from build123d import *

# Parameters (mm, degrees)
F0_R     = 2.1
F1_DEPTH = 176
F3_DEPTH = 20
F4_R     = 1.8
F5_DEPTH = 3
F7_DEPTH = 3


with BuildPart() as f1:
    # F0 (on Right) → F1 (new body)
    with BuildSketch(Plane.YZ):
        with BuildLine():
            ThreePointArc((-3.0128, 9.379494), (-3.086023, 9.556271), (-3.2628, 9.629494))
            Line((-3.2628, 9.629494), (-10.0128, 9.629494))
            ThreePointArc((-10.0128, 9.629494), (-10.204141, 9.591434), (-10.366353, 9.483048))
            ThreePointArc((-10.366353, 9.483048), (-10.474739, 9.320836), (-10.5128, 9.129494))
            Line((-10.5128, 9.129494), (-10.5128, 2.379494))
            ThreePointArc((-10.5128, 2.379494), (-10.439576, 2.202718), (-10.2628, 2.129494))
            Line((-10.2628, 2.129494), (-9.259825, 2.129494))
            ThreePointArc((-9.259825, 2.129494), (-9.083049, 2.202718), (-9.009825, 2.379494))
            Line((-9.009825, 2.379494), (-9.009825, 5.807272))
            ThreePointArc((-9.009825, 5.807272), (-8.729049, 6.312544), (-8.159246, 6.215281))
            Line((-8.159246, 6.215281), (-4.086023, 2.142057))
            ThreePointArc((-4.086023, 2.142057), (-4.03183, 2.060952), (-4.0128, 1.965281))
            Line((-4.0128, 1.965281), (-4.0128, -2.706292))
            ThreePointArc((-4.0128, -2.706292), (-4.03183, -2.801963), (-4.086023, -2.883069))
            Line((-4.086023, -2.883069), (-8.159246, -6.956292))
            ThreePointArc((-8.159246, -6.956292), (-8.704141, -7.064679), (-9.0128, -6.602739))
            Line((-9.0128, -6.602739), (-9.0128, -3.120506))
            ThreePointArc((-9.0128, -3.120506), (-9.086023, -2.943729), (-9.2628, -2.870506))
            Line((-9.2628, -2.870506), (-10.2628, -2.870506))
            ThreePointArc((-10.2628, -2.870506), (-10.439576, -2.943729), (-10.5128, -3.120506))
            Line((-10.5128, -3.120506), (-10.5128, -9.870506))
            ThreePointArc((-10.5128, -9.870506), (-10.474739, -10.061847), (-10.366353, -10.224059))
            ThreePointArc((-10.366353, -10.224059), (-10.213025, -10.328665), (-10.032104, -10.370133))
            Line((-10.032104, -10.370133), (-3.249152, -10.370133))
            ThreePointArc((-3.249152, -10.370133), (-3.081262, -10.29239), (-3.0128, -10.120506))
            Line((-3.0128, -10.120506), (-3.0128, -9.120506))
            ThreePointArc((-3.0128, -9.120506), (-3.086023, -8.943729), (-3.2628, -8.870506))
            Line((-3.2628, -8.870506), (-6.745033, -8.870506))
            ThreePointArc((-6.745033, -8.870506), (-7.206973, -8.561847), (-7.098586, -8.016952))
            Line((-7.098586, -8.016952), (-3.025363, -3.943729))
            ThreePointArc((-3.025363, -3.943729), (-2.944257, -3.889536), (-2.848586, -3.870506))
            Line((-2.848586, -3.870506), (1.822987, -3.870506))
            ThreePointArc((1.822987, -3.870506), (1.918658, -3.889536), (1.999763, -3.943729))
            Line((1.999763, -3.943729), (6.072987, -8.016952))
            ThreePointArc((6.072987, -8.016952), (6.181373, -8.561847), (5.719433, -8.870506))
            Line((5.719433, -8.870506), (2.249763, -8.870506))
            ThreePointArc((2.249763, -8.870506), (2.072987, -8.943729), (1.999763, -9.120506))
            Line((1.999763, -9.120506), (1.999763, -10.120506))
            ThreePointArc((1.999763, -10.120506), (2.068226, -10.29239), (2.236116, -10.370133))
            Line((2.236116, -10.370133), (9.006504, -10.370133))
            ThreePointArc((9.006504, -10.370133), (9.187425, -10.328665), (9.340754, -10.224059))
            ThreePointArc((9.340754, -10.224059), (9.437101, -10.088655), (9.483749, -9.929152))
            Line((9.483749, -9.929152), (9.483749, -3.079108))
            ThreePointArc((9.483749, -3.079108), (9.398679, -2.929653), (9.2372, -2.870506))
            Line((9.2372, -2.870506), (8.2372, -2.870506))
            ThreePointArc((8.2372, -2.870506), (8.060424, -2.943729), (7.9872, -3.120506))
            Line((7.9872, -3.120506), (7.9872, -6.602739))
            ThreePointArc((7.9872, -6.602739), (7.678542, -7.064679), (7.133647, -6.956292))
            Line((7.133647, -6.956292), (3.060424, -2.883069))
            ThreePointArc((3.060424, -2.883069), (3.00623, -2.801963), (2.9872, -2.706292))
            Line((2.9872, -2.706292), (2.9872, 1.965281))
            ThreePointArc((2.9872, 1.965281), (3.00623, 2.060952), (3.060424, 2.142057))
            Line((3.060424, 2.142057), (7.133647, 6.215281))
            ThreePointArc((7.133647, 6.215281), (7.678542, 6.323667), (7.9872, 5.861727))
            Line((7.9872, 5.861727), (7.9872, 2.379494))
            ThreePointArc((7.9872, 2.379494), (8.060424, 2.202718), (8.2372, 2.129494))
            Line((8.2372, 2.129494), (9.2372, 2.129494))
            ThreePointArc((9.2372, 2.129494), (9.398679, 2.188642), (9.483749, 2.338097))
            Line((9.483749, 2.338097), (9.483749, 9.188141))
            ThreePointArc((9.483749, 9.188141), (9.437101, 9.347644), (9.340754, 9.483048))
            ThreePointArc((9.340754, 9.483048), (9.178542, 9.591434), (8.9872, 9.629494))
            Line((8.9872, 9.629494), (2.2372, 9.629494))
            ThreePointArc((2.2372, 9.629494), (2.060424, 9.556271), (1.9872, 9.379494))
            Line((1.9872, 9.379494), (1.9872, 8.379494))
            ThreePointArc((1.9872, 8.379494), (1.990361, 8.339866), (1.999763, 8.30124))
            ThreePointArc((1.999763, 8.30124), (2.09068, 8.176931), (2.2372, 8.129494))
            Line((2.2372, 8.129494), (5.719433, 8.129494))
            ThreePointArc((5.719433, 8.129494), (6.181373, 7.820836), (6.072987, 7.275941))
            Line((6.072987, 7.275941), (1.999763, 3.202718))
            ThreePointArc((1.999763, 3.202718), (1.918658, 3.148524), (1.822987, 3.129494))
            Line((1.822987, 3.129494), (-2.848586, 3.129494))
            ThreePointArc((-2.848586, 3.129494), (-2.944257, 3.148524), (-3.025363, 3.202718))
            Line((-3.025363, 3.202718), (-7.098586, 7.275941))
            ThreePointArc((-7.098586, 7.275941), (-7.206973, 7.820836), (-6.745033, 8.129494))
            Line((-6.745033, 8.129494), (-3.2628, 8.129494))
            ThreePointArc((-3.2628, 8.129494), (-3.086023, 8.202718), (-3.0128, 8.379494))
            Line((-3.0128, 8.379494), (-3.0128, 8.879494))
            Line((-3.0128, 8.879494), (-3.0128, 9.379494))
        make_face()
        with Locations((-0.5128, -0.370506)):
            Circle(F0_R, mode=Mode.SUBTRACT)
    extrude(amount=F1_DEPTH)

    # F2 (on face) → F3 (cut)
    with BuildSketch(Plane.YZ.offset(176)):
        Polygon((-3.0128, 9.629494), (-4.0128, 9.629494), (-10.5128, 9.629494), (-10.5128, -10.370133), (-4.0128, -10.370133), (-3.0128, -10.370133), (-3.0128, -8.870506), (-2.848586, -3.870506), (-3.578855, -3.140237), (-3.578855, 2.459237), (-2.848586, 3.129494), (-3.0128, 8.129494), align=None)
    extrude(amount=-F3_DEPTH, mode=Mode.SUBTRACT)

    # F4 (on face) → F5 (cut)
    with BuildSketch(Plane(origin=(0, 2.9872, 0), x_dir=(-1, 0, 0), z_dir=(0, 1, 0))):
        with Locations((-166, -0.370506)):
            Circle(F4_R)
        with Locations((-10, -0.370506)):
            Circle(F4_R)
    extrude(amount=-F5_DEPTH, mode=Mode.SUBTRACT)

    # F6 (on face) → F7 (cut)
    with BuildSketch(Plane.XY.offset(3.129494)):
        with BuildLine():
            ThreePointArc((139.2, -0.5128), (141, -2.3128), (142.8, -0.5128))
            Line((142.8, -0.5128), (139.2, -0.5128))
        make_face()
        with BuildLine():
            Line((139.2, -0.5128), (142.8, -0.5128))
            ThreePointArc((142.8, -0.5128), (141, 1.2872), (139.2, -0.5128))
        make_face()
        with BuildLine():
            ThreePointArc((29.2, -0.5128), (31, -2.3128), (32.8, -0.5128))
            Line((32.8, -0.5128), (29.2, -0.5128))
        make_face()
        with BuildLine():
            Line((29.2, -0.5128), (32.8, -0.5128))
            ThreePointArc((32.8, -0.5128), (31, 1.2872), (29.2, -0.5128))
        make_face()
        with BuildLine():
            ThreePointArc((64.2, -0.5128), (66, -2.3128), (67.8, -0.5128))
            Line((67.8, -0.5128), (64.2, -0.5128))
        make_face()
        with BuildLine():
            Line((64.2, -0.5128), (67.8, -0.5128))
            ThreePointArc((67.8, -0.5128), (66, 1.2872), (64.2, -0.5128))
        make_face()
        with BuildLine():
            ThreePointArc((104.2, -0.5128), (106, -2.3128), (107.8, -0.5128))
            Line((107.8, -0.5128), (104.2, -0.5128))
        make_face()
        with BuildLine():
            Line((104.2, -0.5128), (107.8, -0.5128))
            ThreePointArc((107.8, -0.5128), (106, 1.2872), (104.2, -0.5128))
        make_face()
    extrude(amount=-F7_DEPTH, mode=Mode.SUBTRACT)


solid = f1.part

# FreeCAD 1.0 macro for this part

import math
import FreeCAD as App
import Part
import Sketcher
Q = App.Units.Quantity


def add_polygon(sketch, points):
    """Adds a closed chain of lines whose ends are joined by coincident constraints."""
    first, n = sketch.GeometryCount, len(points)
    for a, b in zip(points, points[1:] + points[:1]):
        sketch.addGeometry(Part.LineSegment(App.Vector(*a, 0), App.Vector(*b, 0)), False)
    for i in range(n):
        sketch.addConstraint(Sketcher.Constraint("Coincident", first + i, 2, first + (i + 1) % n, 1))

doc = App.newDocument("Part")
body = doc.addObject("PartDesign::Body", "Body")

# Sketch on YZ plane
sketch1 = doc.addObject("Sketcher::SketchObject", "Sketch")
body.addObject(sketch1)
sketch1.AttachmentSupport = (doc.YZ_Plane, [""])
sketch1.MapMode = "FlatFace"
sketch1.addGeometry([
    Part.ArcOfCircle(Part.Circle(App.Vector(-3.26, 9.38, 0), App.Vector(0, 0, 1), 0.25), math.radians(0), math.radians(90)),  # 0
    Part.LineSegment(App.Vector(-3.26, 9.63, 0), App.Vector(-10.01, 9.63, 0)),  # 1
    Part.ArcOfCircle(Part.Circle(App.Vector(-10.01, 9.13, 0), App.Vector(0, 0, 1), 0.5), math.radians(90), math.radians(135)),  # 2
    Part.ArcOfCircle(Part.Circle(App.Vector(-10.01, 9.13, 0), App.Vector(0, 0, 1), 0.5), math.radians(135), math.radians(180)),  # 3
    Part.LineSegment(App.Vector(-10.51, 9.13, 0), App.Vector(-10.51, 2.38, 0)),  # 4
    Part.ArcOfCircle(Part.Circle(App.Vector(-10.26, 2.38, 0), App.Vector(0, 0, 1), 0.25), math.radians(-180), math.radians(-90)),  # 5
    Part.LineSegment(App.Vector(-10.26, 2.13, 0), App.Vector(-9.26, 2.13, 0)),  # 6
    Part.ArcOfCircle(Part.Circle(App.Vector(-9.26, 2.38, 0), App.Vector(0, 0, 1), 0.25), math.radians(-90), math.radians(0)),  # 7
    Part.LineSegment(App.Vector(-9.01, 2.38, 0), App.Vector(-9.01, 5.81, 0)),  # 8
    Part.ArcOfCircle(Part.Circle(App.Vector(-8.51, 5.86, 0), App.Vector(0, 0, 1), 0.5), math.radians(45), math.radians(186)),  # 9
    Part.LineSegment(App.Vector(-8.16, 6.22, 0), App.Vector(-4.09, 2.14, 0)),  # 10
    Part.ArcOfCircle(Part.Circle(App.Vector(-4.26, 1.97, 0), App.Vector(0, 0, 1), 0.25), math.radians(0), math.radians(45)),  # 11
    Part.LineSegment(App.Vector(-4.01, 1.97, 0), App.Vector(-4.01, -2.71, 0)),  # 12
    Part.ArcOfCircle(Part.Circle(App.Vector(-4.26, -2.71, 0), App.Vector(0, 0, 1), 0.25), math.radians(-45), math.radians(0)),  # 13
    Part.LineSegment(App.Vector(-4.09, -2.88, 0), App.Vector(-8.16, -6.96, 0)),  # 14
    Part.ArcOfCircle(Part.Circle(App.Vector(-8.51, -6.6, 0), App.Vector(0, 0, 1), 0.5), math.radians(-180), math.radians(-45)),  # 15
    Part.LineSegment(App.Vector(-9.01, -6.6, 0), App.Vector(-9.01, -3.12, 0)),  # 16
    Part.ArcOfCircle(Part.Circle(App.Vector(-9.26, -3.12, 0), App.Vector(0, 0, 1), 0.25), math.radians(0), math.radians(90)),  # 17
    Part.LineSegment(App.Vector(-9.26, -2.87, 0), App.Vector(-10.26, -2.87, 0)),  # 18
    Part.ArcOfCircle(Part.Circle(App.Vector(-10.26, -3.12, 0), App.Vector(0, 0, 1), 0.25), math.radians(90), math.radians(180)),  # 19
    Part.LineSegment(App.Vector(-10.51, -3.12, 0), App.Vector(-10.51, -9.87, 0)),  # 20
    Part.ArcOfCircle(Part.Circle(App.Vector(-10.01, -9.87, 0), App.Vector(0, 0, 1), 0.5), math.radians(-180), math.radians(-135)),  # 21
    Part.ArcOfCircle(Part.Circle(App.Vector(-10.01, -9.87, 0), App.Vector(0, 0, 1), 0.5), math.radians(-135), math.radians(-92)),  # 22
    Part.LineSegment(App.Vector(-10.03, -10.37, 0), App.Vector(-3.25, -10.37, 0)),  # 23
    Part.ArcOfCircle(Part.Circle(App.Vector(-3.26, -10.12, 0), App.Vector(0, 0, 1), 0.25), math.radians(-87), math.radians(0)),  # 24
    Part.LineSegment(App.Vector(-3.01, -10.12, 0), App.Vector(-3.01, -9.12, 0)),  # 25
    Part.ArcOfCircle(Part.Circle(App.Vector(-3.26, -9.12, 0), App.Vector(0, 0, 1), 0.25), math.radians(0), math.radians(90)),  # 26
    Part.LineSegment(App.Vector(-3.26, -8.87, 0), App.Vector(-6.75, -8.87, 0)),  # 27
    Part.ArcOfCircle(Part.Circle(App.Vector(-6.75, -8.37, 0), App.Vector(0, 0, 1), 0.5), math.radians(135), math.radians(270)),  # 28
    Part.LineSegment(App.Vector(-7.1, -8.02, 0), App.Vector(-3.03, -3.94, 0)),  # 29
    Part.ArcOfCircle(Part.Circle(App.Vector(-2.85, -4.12, 0), App.Vector(0, 0, 1), 0.25), math.radians(90), math.radians(135)),  # 30
    Part.LineSegment(App.Vector(-2.85, -3.87, 0), App.Vector(1.82, -3.87, 0)),  # 31
    Part.ArcOfCircle(Part.Circle(App.Vector(1.82, -4.12, 0), App.Vector(0, 0, 1), 0.25), math.radians(45), math.radians(90)),  # 32
    Part.LineSegment(App.Vector(2, -3.94, 0), App.Vector(6.07, -8.02, 0)),  # 33
    Part.ArcOfCircle(Part.Circle(App.Vector(5.72, -8.37, 0), App.Vector(0, 0, 1), 0.5), math.radians(-90), math.radians(45)),  # 34
    Part.LineSegment(App.Vector(5.72, -8.87, 0), App.Vector(2.25, -8.87, 0)),  # 35
    Part.ArcOfCircle(Part.Circle(App.Vector(2.25, -9.12, 0), App.Vector(0, 0, 1), 0.25), math.radians(90), math.radians(180)),  # 36
    Part.LineSegment(App.Vector(2, -9.12, 0), App.Vector(2, -10.12, 0)),  # 37
    Part.ArcOfCircle(Part.Circle(App.Vector(2.25, -10.12, 0), App.Vector(0, 0, 1), 0.25), math.radians(-180), math.radians(-93)),  # 38
    Part.LineSegment(App.Vector(2.24, -10.37, 0), App.Vector(9.01, -10.37, 0)),  # 39
    Part.ArcOfCircle(Part.Circle(App.Vector(8.99, -9.87, 0), App.Vector(0, 0, 1), 0.5), math.radians(-88), math.radians(-45)),  # 40
    Part.ArcOfCircle(Part.Circle(App.Vector(8.99, -9.87, 0), App.Vector(0, 0, 1), 0.5), math.radians(-45), math.radians(-7)),  # 41
    Part.LineSegment(App.Vector(9.48, -9.93, 0), App.Vector(9.48, -3.08, 0)),  # 42
    Part.ArcOfCircle(Part.Circle(App.Vector(9.24, -3.12, 0), App.Vector(0, 0, 1), 0.25), math.radians(10), math.radians(90)),  # 43
    Part.LineSegment(App.Vector(9.24, -2.87, 0), App.Vector(8.24, -2.87, 0)),  # 44
    Part.ArcOfCircle(Part.Circle(App.Vector(8.24, -3.12, 0), App.Vector(0, 0, 1), 0.25), math.radians(90), math.radians(180)),  # 45
    Part.LineSegment(App.Vector(7.99, -3.12, 0), App.Vector(7.99, -6.6, 0)),  # 46
    Part.ArcOfCircle(Part.Circle(App.Vector(7.49, -6.6, 0), App.Vector(0, 0, 1), 0.5), math.radians(-135), math.radians(0)),  # 47
    Part.LineSegment(App.Vector(7.13, -6.96, 0), App.Vector(3.06, -2.88, 0)),  # 48
    Part.ArcOfCircle(Part.Circle(App.Vector(3.24, -2.71, 0), App.Vector(0, 0, 1), 0.25), math.radians(180), math.radians(225)),  # 49
    Part.LineSegment(App.Vector(2.99, -2.71, 0), App.Vector(2.99, 1.97, 0)),  # 50
    Part.ArcOfCircle(Part.Circle(App.Vector(3.24, 1.97, 0), App.Vector(0, 0, 1), 0.25), math.radians(135), math.radians(180)),  # 51
    Part.LineSegment(App.Vector(3.06, 2.14, 0), App.Vector(7.13, 6.22, 0)),  # 52
    Part.ArcOfCircle(Part.Circle(App.Vector(7.49, 5.86, 0), App.Vector(0, 0, 1), 0.5), math.radians(0), math.radians(135)),  # 53
    Part.LineSegment(App.Vector(7.99, 5.86, 0), App.Vector(7.99, 2.38, 0)),  # 54
    Part.ArcOfCircle(Part.Circle(App.Vector(8.24, 2.38, 0), App.Vector(0, 0, 1), 0.25), math.radians(-180), math.radians(-90)),  # 55
    Part.LineSegment(App.Vector(8.24, 2.13, 0), App.Vector(9.24, 2.13, 0)),  # 56
    Part.ArcOfCircle(Part.Circle(App.Vector(9.24, 2.38, 0), App.Vector(0, 0, 1), 0.25), math.radians(-90), math.radians(-10)),  # 57
    Part.LineSegment(App.Vector(9.48, 2.34, 0), App.Vector(9.48, 9.19, 0)),  # 58
    Part.ArcOfCircle(Part.Circle(App.Vector(8.99, 9.13, 0), App.Vector(0, 0, 1), 0.5), math.radians(7), math.radians(45)),  # 59
    Part.ArcOfCircle(Part.Circle(App.Vector(8.99, 9.13, 0), App.Vector(0, 0, 1), 0.5), math.radians(45), math.radians(90)),  # 60
    Part.LineSegment(App.Vector(8.99, 9.63, 0), App.Vector(2.24, 9.63, 0)),  # 61
    Part.ArcOfCircle(Part.Circle(App.Vector(2.24, 9.38, 0), App.Vector(0, 0, 1), 0.25), math.radians(90), math.radians(180)),  # 62
    Part.LineSegment(App.Vector(1.99, 9.38, 0), App.Vector(1.99, 8.38, 0)),  # 63
    Part.ArcOfCircle(Part.Circle(App.Vector(2.24, 8.38, 0), App.Vector(0, 0, 1), 0.25), math.radians(-180), math.radians(-161.76)),  # 64
    Part.ArcOfCircle(Part.Circle(App.Vector(2.24, 8.38, 0), App.Vector(0, 0, 1), 0.25), math.radians(-162), math.radians(-90)),  # 65
    Part.LineSegment(App.Vector(2.24, 8.13, 0), App.Vector(5.72, 8.13, 0)),  # 66
    Part.ArcOfCircle(Part.Circle(App.Vector(5.72, 7.63, 0), App.Vector(0, 0, 1), 0.5), math.radians(-45), math.radians(90)),  # 67
    Part.LineSegment(App.Vector(6.07, 7.28, 0), App.Vector(2, 3.2, 0)),  # 68
    Part.ArcOfCircle(Part.Circle(App.Vector(1.82, 3.38, 0), App.Vector(0, 0, 1), 0.25), math.radians(-90), math.radians(-45)),  # 69
    Part.LineSegment(App.Vector(1.82, 3.13, 0), App.Vector(-2.85, 3.13, 0)),  # 70
    Part.ArcOfCircle(Part.Circle(App.Vector(-2.85, 3.38, 0), App.Vector(0, 0, 1), 0.25), math.radians(-135), math.radians(-90)),  # 71
    Part.LineSegment(App.Vector(-3.03, 3.2, 0), App.Vector(-7.1, 7.28, 0)),  # 72
    Part.ArcOfCircle(Part.Circle(App.Vector(-6.75, 7.63, 0), App.Vector(0, 0, 1), 0.5), math.radians(90), math.radians(225)),  # 73
    Part.LineSegment(App.Vector(-6.75, 8.13, 0), App.Vector(-3.26, 8.13, 0)),  # 74
    Part.ArcOfCircle(Part.Circle(App.Vector(-3.26, 8.38, 0), App.Vector(0, 0, 1), 0.25), math.radians(-90), math.radians(0)),  # 75
    Part.LineSegment(App.Vector(-3.01, 8.38, 0), App.Vector(-3.01, 9.38, 0)),  # 76
    Part.Circle(App.Vector(-0.51, -0.37, 0), App.Vector(0, 0, 1), 2.1),  # 77
], False)
sketch1.addConstraint([
    Sketcher.Constraint("Coincident", 0, 2, 1, 1),
    Sketcher.Constraint("Tangent", 1, 2, 2, 1),
    Sketcher.Constraint("Coincident", 2, 2, 3, 1),
    Sketcher.Constraint("Coincident", 3, 2, 4, 1),
    Sketcher.Constraint("Coincident", 4, 2, 5, 1),
    Sketcher.Constraint("Coincident", 5, 2, 6, 1),
    Sketcher.Constraint("Coincident", 6, 2, 7, 1),
    Sketcher.Constraint("Coincident", 7, 2, 8, 1),
    Sketcher.Constraint("Coincident", 8, 2, 9, 2),
    Sketcher.Constraint("Tangent", 9, 1, 10, 1),
    Sketcher.Constraint("Coincident", 10, 2, 11, 2),
    Sketcher.Constraint("Coincident", 11, 1, 12, 1),
    Sketcher.Constraint("Tangent", 12, 2, 13, 2),
    Sketcher.Constraint("Coincident", 13, 1, 14, 1),
    Sketcher.Constraint("Tangent", 14, 2, 15, 2),
    Sketcher.Constraint("Tangent", 15, 1, 16, 1),
    Sketcher.Constraint("Coincident", 16, 2, 17, 1),
    Sketcher.Constraint("Coincident", 17, 2, 18, 1),
    Sketcher.Constraint("Coincident", 18, 2, 19, 1),
    Sketcher.Constraint("Coincident", 19, 2, 20, 1),
    Sketcher.Constraint("Coincident", 20, 2, 21, 1),
    Sketcher.Constraint("Coincident", 21, 2, 22, 1),
    Sketcher.Constraint("Coincident", 22, 2, 23, 1),
    Sketcher.Constraint("Coincident", 23, 2, 24, 1),
    Sketcher.Constraint("Coincident", 24, 2, 25, 1),
    Sketcher.Constraint("Coincident", 25, 2, 26, 1),
    Sketcher.Constraint("Coincident", 26, 2, 27, 1),
    Sketcher.Constraint("Tangent", 27, 2, 28, 2),
    Sketcher.Constraint("Tangent", 28, 1, 29, 1),
    Sketcher.Constraint("Coincident", 29, 2, 30, 2),
    Sketcher.Constraint("Tangent", 30, 1, 31, 1),
    Sketcher.Constraint("Coincident", 31, 2, 32, 2),
    Sketcher.Constraint("Coincident", 32, 1, 33, 1),
    Sketcher.Constraint("Tangent", 33, 2, 34, 2),
    Sketcher.Constraint("Tangent", 34, 1, 35, 1),
    Sketcher.Constraint("Coincident", 35, 2, 36, 1),
    Sketcher.Constraint("Coincident", 36, 2, 37, 1),
    Sketcher.Constraint("Coincident", 37, 2, 38, 1),
    Sketcher.Constraint("Coincident", 38, 2, 39, 1),
    Sketcher.Constraint("Coincident", 39, 2, 40, 1),
    Sketcher.Constraint("Coincident", 40, 2, 41, 1),
    Sketcher.Constraint("Coincident", 41, 2, 42, 1),
    Sketcher.Constraint("Coincident", 42, 2, 43, 1),
    Sketcher.Constraint("Coincident", 43, 2, 44, 1),
    Sketcher.Constraint("Coincident", 44, 2, 45, 1),
    Sketcher.Constraint("Coincident", 45, 2, 46, 1),
    Sketcher.Constraint("Tangent", 46, 2, 47, 2),
    Sketcher.Constraint("Coincident", 47, 1, 48, 1),
    Sketcher.Constraint("Coincident", 48, 2, 49, 2),
    Sketcher.Constraint("Coincident", 49, 1, 50, 1),
    Sketcher.Constraint("Coincident", 50, 2, 51, 2),
    Sketcher.Constraint("Coincident", 51, 1, 52, 1),
    Sketcher.Constraint("Tangent", 52, 2, 53, 2),
    Sketcher.Constraint("Tangent", 53, 1, 54, 1),
    Sketcher.Constraint("Coincident", 54, 2, 55, 1),
    Sketcher.Constraint("Coincident", 55, 2, 56, 1),
    Sketcher.Constraint("Tangent", 56, 2, 57, 1),
    Sketcher.Constraint("Coincident", 57, 2, 58, 1),
    Sketcher.Constraint("Coincident", 58, 2, 59, 1),
    Sketcher.Constraint("Coincident", 59, 2, 60, 1),
    Sketcher.Constraint("Tangent", 60, 2, 61, 1),
    Sketcher.Constraint("Coincident", 61, 2, 62, 1),
    Sketcher.Constraint("Coincident", 62, 2, 63, 1),
    Sketcher.Constraint("Coincident", 63, 2, 64, 1),
    Sketcher.Constraint("Coincident", 64, 2, 65, 1),
    Sketcher.Constraint("Coincident", 65, 2, 66, 1),
    Sketcher.Constraint("Tangent", 66, 2, 67, 2),
    Sketcher.Constraint("Tangent", 67, 1, 68, 1),
    Sketcher.Constraint("Coincident", 68, 2, 69, 2),
    Sketcher.Constraint("Coincident", 69, 1, 70, 1),
    Sketcher.Constraint("Coincident", 70, 2, 71, 2),
    Sketcher.Constraint("Coincident", 71, 1, 72, 1),
    Sketcher.Constraint("Coincident", 72, 2, 73, 2),
    Sketcher.Constraint("Tangent", 73, 1, 74, 1),
    Sketcher.Constraint("Coincident", 74, 2, 75, 1),
    Sketcher.Constraint("Coincident", 75, 2, 76, 1),
    Sketcher.Constraint("Coincident", 76, 2, 0, 1),
    Sketcher.Constraint("Horizontal", 1),
    Sketcher.Constraint("Vertical", 4),
    Sketcher.Constraint("Horizontal", 6),
    Sketcher.Constraint("Vertical", 8),
    Sketcher.Constraint("Vertical", 12),
    Sketcher.Constraint("Vertical", 16),
    Sketcher.Constraint("Horizontal", 18),
    Sketcher.Constraint("Vertical", 20),
    Sketcher.Constraint("Horizontal", 23),
    Sketcher.Constraint("Vertical", 25),
    Sketcher.Constraint("Horizontal", 27),
    Sketcher.Constraint("Horizontal", 31),
    Sketcher.Constraint("Horizontal", 35),
    Sketcher.Constraint("Vertical", 37),
    Sketcher.Constraint("Horizontal", 39),
    Sketcher.Constraint("Vertical", 42),
    Sketcher.Constraint("Horizontal", 44),
    Sketcher.Constraint("Vertical", 46),
    Sketcher.Constraint("Vertical", 50),
    Sketcher.Constraint("Vertical", 54),
    Sketcher.Constraint("Horizontal", 56),
    Sketcher.Constraint("Vertical", 58),
    Sketcher.Constraint("Horizontal", 61),
    Sketcher.Constraint("Vertical", 63),
    Sketcher.Constraint("Horizontal", 66),
    Sketcher.Constraint("Horizontal", 70),
    Sketcher.Constraint("Horizontal", 74),
    Sketcher.Constraint("Vertical", 76),
    Sketcher.Constraint("Coincident", 3, 3, 2, 3),
    Sketcher.Constraint("Coincident", 41, 3, 40, 3),
    Sketcher.Constraint("Coincident", 60, 3, 59, 3),
    Sketcher.Constraint("Equal", 5, 7),
    Sketcher.Constraint("Equal", 2, 9),
    Sketcher.Constraint("Equal", 7, 13),
    Sketcher.Constraint("Equal", 9, 15),
    Sketcher.Constraint("Equal", 13, 17),
    Sketcher.Constraint("Equal", 17, 19),
    Sketcher.Constraint("Equal", 3, 21),
    Sketcher.Constraint("Equal", 15, 22),
    Sketcher.Constraint("Equal", 19, 24),
    Sketcher.Constraint("Equal", 24, 26),
    Sketcher.Constraint("Equal", 22, 28),
    Sketcher.Constraint("Equal", 26, 30),
    Sketcher.Constraint("Equal", 11, 32),
    Sketcher.Constraint("Equal", 28, 34),
    Sketcher.Constraint("Equal", 30, 36),
    Sketcher.Constraint("Equal", 36, 38),
    Sketcher.Constraint("Equal", 2, 40),
    Sketcher.Constraint("Equal", 38, 43),
    Sketcher.Constraint("Equal", 43, 45),
    Sketcher.Constraint("Equal", 34, 47),
    Sketcher.Constraint("Equal", 32, 49),
    Sketcher.Constraint("Equal", 47, 53),
    Sketcher.Constraint("Equal", 45, 55),
    Sketcher.Constraint("Equal", 55, 57),
    Sketcher.Constraint("Equal", 41, 59),
    Sketcher.Constraint("Equal", 57, 62),
    Sketcher.Constraint("Equal", 62, 65),
    Sketcher.Constraint("Equal", 60, 67),
    Sketcher.Constraint("Equal", 51, 69),
    Sketcher.Constraint("Equal", 49, 71),
    Sketcher.Constraint("Equal", 67, 73),
    Sketcher.Constraint("Equal", 65, 75),
    Sketcher.Constraint("Perpendicular", 10, 14),
    Sketcher.Constraint("Parallel", 14, 29),
    Sketcher.Constraint("Perpendicular", 29, 33),
    Sketcher.Constraint("Parallel", 33, 48),
    Sketcher.Constraint("Perpendicular", 48, 52),
    Sketcher.Constraint("Parallel", 52, 68),
    Sketcher.Constraint("Perpendicular", 68, 72),
    Sketcher.Constraint("Horizontal", 28, 3, 34, 3),
    Sketcher.Constraint("Horizontal", 24, 3, 38, 3),
    Sketcher.Constraint("Horizontal", 21, 3, 40, 3),
    Sketcher.Constraint("Horizontal", 19, 3, 43, 3),
    Sketcher.Constraint("Horizontal", 15, 3, 47, 3),
    Sketcher.Constraint("Horizontal", 13, 3, 49, 3),
    Sketcher.Constraint("Horizontal", 11, 3, 51, 3),
    Sketcher.Constraint("Horizontal", 9, 3, 53, 3),
    Sketcher.Constraint("Horizontal", 7, 3, 55, 3),
    Sketcher.Constraint("Horizontal", 3, 3, 59, 3),
    Sketcher.Constraint("Horizontal", 0, 3, 62, 3),
    Sketcher.Constraint("Horizontal", 67, 3, 73, 3),
    Sketcher.Constraint("Horizontal", 60, 3, 3, 2),
    Sketcher.Constraint("Horizontal", 57, 3, 4, 2),
    Sketcher.Constraint("Horizontal", 4, 2, 7, 2),
    Sketcher.Constraint("Horizontal", 45, 3, 16, 2),
    Sketcher.Constraint("Horizontal", 16, 2, 19, 2),
    Sketcher.Constraint("Horizontal", 22, 3, 20, 2),
    Sketcher.Constraint("Horizontal", 38, 3, 24, 2),
    Sketcher.Constraint("Horizontal", 36, 3, 25, 2),
    Sketcher.Constraint("Horizontal", 29, 2, 32, 1),
    Sketcher.Constraint("Horizontal", 28, 1, 33, 2),
    Sketcher.Constraint("Horizontal", 25, 2, 36, 2),
    Sketcher.Constraint("Horizontal", 24, 2, 37, 2),
    Sketcher.Constraint("Horizontal", 23, 2, 38, 2),
    Sketcher.Constraint("Horizontal", 21, 2, 40, 2),
    Sketcher.Constraint("Horizontal", 19, 2, 45, 2),
    Sketcher.Constraint("Horizontal", 14, 2, 47, 1),
    Sketcher.Constraint("Horizontal", 13, 1, 48, 2),
    Sketcher.Constraint("Horizontal", 12, 2, 49, 1),
    Sketcher.Constraint("Horizontal", 11, 1, 50, 2),
    Sketcher.Constraint("Horizontal", 10, 2, 51, 1),
    Sketcher.Constraint("Horizontal", 7, 2, 54, 2),
    Sketcher.Constraint("Horizontal", 2, 2, 59, 2),
    Sketcher.Constraint("Horizontal", 0, 3, 62, 2),
    Sketcher.Constraint("Horizontal", 75, 3, 63, 2),
    Sketcher.Constraint("Horizontal", 68, 2, 71, 1),
    Sketcher.Constraint("Horizontal", 67, 1, 72, 2),
    Sketcher.Constraint("Horizontal", 63, 2, 75, 2),
    Sketcher.Constraint("Horizontal", 62, 2, 76, 2),
    Sketcher.Constraint("Vertical", 9, 3, 15, 3),
    Sketcher.Constraint("Vertical", 5, 3, 19, 3),
    Sketcher.Constraint("Vertical", 2, 3, 22, 3),
    Sketcher.Constraint("Vertical", 0, 3, 24, 3),
    Sketcher.Constraint("Vertical", 47, 3, 53, 3),
    Sketcher.Constraint("Vertical", 43, 3, 57, 3),
    Sketcher.Constraint("Vertical", 41, 3, 59, 3),
    Sketcher.Constraint("Vertical", 62, 3, 65, 3),
    Sketcher.Constraint("Vertical", 34, 3, 67, 3),
    Sketcher.Constraint("Vertical", 32, 3, 69, 3),
    Sketcher.Constraint("Vertical", 30, 3, 71, 3),
    Sketcher.Constraint("Vertical", 75, 3, 0, 2),
    Sketcher.Constraint("Vertical", 19, 3, 5, 2),
    Sketcher.Constraint("Vertical", 10, 2, 13, 1),
    Sketcher.Constraint("Vertical", 5, 2, 18, 2),
    Sketcher.Constraint("Vertical", 2, 2, 21, 2),
    Sketcher.Constraint("Vertical", 0, 2, 26, 2),
    Sketcher.Constraint("Vertical", 32, 3, 31, 2),
    Sketcher.Constraint("Vertical", 38, 3, 35, 2),
    Sketcher.Constraint("Vertical", 32, 1, 36, 2),
    Sketcher.Constraint("Vertical", 57, 3, 43, 2),
    Sketcher.Constraint("Vertical", 45, 3, 44, 2),
    Sketcher.Constraint("Vertical", 44, 2, 55, 2),
    Sketcher.Constraint("Vertical", 42, 2, 57, 2),
    Sketcher.Constraint("Vertical", 65, 3, 61, 2),
    Sketcher.Constraint("Vertical", 37, 2, 64, 2),
    Sketcher.Constraint("Vertical", 61, 2, 65, 2),
    Sketcher.Constraint("Vertical", 64, 2, 68, 2),
    Sketcher.Constraint("Vertical", 31, 2, 69, 1),
    Sketcher.Constraint("Vertical", 30, 1, 70, 2),
    Sketcher.Constraint("Vertical", 26, 2, 74, 2),
    Sketcher.Constraint("Equal", 18, 44),
    Sketcher.Constraint("Equal", 1, 61),
    Sketcher.Constraint("Equal", 27, 66),
    Sketcher.Constraint("Equal", 61, 4),
    Sketcher.Constraint("Equal", 70, 12),
    Sketcher.Constraint("Equal", 74, 16),
    Sketcher.Constraint("Equal", 4, 20),
    Sketcher.Constraint("Equal", 56, 25),
    Sketcher.Constraint("Equal", 46, 54),
    Sketcher.Constraint("Equal", 37, 63),
    Sketcher.Constraint("Equal", 14, 29),
    Sketcher.Constraint("Diameter", 77, 4.2),
    Sketcher.Constraint("Radius", 2, 0.500002),
    Sketcher.Constraint("DistanceX", 18, 2, 18, 1, 1.0),
    Sketcher.Constraint("Radius", 0, 0.249999),
    Sketcher.Constraint("DistanceX", 1, 2, 1, 1, 6.75),
    Sketcher.Constraint("Radius", 51, 0.249992),
    Sketcher.Constraint("Radius", 64, 0.250022),
    Sketcher.Constraint("DistanceX", 35, 2, 35, 1, 3.46967),
    Sketcher.Constraint("DistanceY", 8, 1, 8, 2, 3.427778),
    Sketcher.Constraint("DistanceX", 0, 3, -1, 1, 3.262799),
    Sketcher.Constraint("DistanceX", 9, 3, -1, 1, 8.512799),
    Sketcher.Constraint("DistanceX", 13, 3, -1, 1, 4.262801),
    Sketcher.Constraint("DistanceY", 21, 3, -1, 1, 9.870502),
    Sketcher.Constraint("DistanceX", -1, 1, 40, 3, 8.987199),
    Sketcher.Constraint("DistanceX", -1, 1, 43, 3, 9.237202),
    Sketcher.Constraint("DistanceX", 77, 3, -1, 1, 0.5128),
    Sketcher.Constraint("DistanceX", 6, 1, 6, 2, 1.002975),
    Sketcher.Constraint("DistanceX", 23, 1, 23, 2, 6.782952),
    Sketcher.Constraint("DistanceX", 27, 2, 27, 1, 3.482233),
    Sketcher.Constraint("DistanceX", 31, 1, 31, 2, 4.671573),
    Sketcher.Constraint("DistanceY", 42, 1, 42, 2, 6.850044),
    Sketcher.Constraint("DistanceY", -1, 1, 3, 3, 9.129491),
    Sketcher.Constraint("DistanceY", -1, 1, 2, 2, 9.483048),
    Sketcher.Constraint("DistanceX", 23, 2, -1, 1, 3.249152),
    Sketcher.Constraint("DistanceY", 77, 3, -1, 1, 0.370506),
])
pad1 = doc.addObject("PartDesign::Pad", "Pad")
body.addObject(pad1)
pad1.Profile = sketch1
pad1.Length = 176

# Sketch on YZ plane
sketch2 = doc.addObject("Sketcher::SketchObject", "Sketch001")
body.addObject(sketch2)
sketch2.AttachmentSupport = (doc.YZ_Plane, [""])
sketch2.MapMode = "FlatFace"
sketch2.AttachmentOffset = App.Placement(App.Vector(0, 0, 176), App.Rotation())
add_polygon(sketch2, [(-3, 9.6), (-10.5, 9.6), (-10.5, -10.4), (-3, -10.4), (-3, -8.9), (-2.8, -3.9), (-3.6, -3.1), (-3.6, 2.5), (-2.8, 3.1), (-3, 8.1)])  # lines 0-9
sketch2.addConstraint([
    Sketcher.Constraint("Horizontal", 0),
    Sketcher.Constraint("Vertical", 1),
    Sketcher.Constraint("Horizontal", 2),
    Sketcher.Constraint("Vertical", 3),
    Sketcher.Constraint("Vertical", 6),
    Sketcher.Constraint("Vertical", 9),
    Sketcher.Constraint("Vertical", 4, 2, 7, 2),
    Sketcher.Constraint("Vertical", 3, 2, 8, 2),
    Sketcher.Constraint("Equal", 4, 8),
    Sketcher.Constraint("Angle", 5, Q("135 deg")),
    Sketcher.Constraint("DistanceX", 0, 2, 0, 1, 7.5),
    Sketcher.Constraint("DistanceY", 9, 1, 9, 2, 1.5),
    Sketcher.Constraint("DistanceY", 3, 2, 4, 2, 5.0),
    Sketcher.Constraint("DistanceY", 4, 2, 7, 2, 7.0),
    Sketcher.Constraint("DistanceX", 0, 2, -1, 1, 10.5128),
    Sketcher.Constraint("Distance", 7, 0.99123),
    Sketcher.Constraint("DistanceY", 1, 2, 1, 1, 19.999627),
    Sketcher.Constraint("DistanceY", 6, 1, 6, 2, 5.599474),
    Sketcher.Constraint("Distance", 4, 5.002696),
    Sketcher.Constraint("DistanceY", -1, 1, 0, 2, 9.629494),
])
pocket1 = doc.addObject("PartDesign::Pocket", "Pocket")
body.addObject(pocket1)
pocket1.Profile = sketch2
pocket1.Length = 20

# Sketch on XZ plane
sketch3 = doc.addObject("Sketcher::SketchObject", "Sketch002")
body.addObject(sketch3)
sketch3.AttachmentSupport = (doc.XZ_Plane, [""])
sketch3.MapMode = "FlatFace"
sketch3.AttachmentOffset = App.Placement(App.Vector(0, 0, -2.9872), App.Rotation())
sketch3.addGeometry([
    Part.Circle(App.Vector(166, -0.4, 0), App.Vector(0, 0, 1), 1.8),
    Part.Circle(App.Vector(10, -0.4, 0), App.Vector(0, 0, 1), 1.8),
], False)
sketch3.addConstraint([
    Sketcher.Constraint("Equal", 0, 1),
    Sketcher.Constraint("Horizontal", 0, 3, 1, 3),
    Sketcher.Constraint("Diameter", 0, 3.6),
    Sketcher.Constraint("DistanceX", -1, 1, 0, 3, 166.0),
    Sketcher.Constraint("DistanceX", -1, 1, 1, 3, 10.0),
    Sketcher.Constraint("DistanceY", 0, 3, -1, 1, 0.370506),
])
pocket2 = doc.addObject("PartDesign::Pocket", "Pocket001")
body.addObject(pocket2)
pocket2.Profile = sketch3
pocket2.Length = 3
pocket2.Reversed = True

# Sketch on XY plane
sketch4 = doc.addObject("Sketcher::SketchObject", "Sketch003")
body.addObject(sketch4)
sketch4.AttachmentSupport = (doc.XY_Plane, [""])
sketch4.MapMode = "FlatFace"
sketch4.AttachmentOffset = App.Placement(App.Vector(0, 0, 3.129494), App.Rotation())
sketch4.addGeometry([
    Part.Circle(App.Vector(141, -0.5, 0), App.Vector(0, 0, 1), 1.8),
    Part.Circle(App.Vector(31, -0.5, 0), App.Vector(0, 0, 1), 1.8),
    Part.Circle(App.Vector(66, -0.5, 0), App.Vector(0, 0, 1), 1.8),
    Part.Circle(App.Vector(106, -0.5, 0), App.Vector(0, 0, 1), 1.8),
], False)
sketch4.addConstraint([
    Sketcher.Constraint("Equal", 0, 1),
    Sketcher.Constraint("Equal", 1, 2),
    Sketcher.Constraint("Equal", 2, 3),
    Sketcher.Constraint("Horizontal", 0, 3, 1, 3),
    Sketcher.Constraint("Horizontal", 1, 3, 2, 3),
    Sketcher.Constraint("Horizontal", 2, 3, 3, 3),
    Sketcher.Constraint("Diameter", 0, 3.6),
    Sketcher.Constraint("DistanceX", -1, 1, 0, 3, 141.0),
    Sketcher.Constraint("DistanceX", -1, 1, 1, 3, 31.0),
    Sketcher.Constraint("DistanceX", -1, 1, 2, 3, 66.0),
    Sketcher.Constraint("DistanceX", -1, 1, 3, 3, 106.0),
    Sketcher.Constraint("DistanceY", 0, 3, -1, 1, 0.5128),
])
pocket3 = doc.addObject("PartDesign::Pocket", "Pocket002")
body.addObject(pocket3)
pocket3.Profile = sketch4
pocket3.Length = 3

doc.recompute()
